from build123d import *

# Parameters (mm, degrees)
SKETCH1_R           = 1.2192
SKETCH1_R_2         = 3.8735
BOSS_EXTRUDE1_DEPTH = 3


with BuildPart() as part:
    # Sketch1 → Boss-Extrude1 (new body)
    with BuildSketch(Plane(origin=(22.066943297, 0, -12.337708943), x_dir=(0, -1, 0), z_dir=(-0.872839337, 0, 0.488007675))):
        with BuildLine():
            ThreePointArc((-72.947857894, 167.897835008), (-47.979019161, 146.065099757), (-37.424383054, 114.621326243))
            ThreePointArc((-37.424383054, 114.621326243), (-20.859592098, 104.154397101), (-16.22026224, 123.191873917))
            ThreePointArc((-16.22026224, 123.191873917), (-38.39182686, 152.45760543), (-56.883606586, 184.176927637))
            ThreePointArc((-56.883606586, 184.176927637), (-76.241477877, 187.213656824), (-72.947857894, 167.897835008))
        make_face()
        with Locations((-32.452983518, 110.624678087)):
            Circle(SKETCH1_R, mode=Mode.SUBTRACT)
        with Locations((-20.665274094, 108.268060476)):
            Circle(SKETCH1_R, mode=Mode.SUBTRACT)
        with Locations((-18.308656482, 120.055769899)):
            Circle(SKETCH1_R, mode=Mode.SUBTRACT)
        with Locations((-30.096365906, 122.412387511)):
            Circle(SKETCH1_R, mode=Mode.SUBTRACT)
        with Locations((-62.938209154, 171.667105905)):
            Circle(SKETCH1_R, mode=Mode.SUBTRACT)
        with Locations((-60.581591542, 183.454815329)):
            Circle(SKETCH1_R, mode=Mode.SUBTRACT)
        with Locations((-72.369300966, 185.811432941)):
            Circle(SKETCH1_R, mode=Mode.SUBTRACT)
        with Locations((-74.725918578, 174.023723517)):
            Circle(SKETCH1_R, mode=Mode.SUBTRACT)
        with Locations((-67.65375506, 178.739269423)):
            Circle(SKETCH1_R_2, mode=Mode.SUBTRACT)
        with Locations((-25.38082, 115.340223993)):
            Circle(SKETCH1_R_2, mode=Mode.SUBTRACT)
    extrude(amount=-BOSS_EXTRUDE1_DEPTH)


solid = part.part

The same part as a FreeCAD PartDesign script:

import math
import FreeCAD as App
import Part
import Sketcher

V = App.Vector
Q = App.Units.Quantity

doc = App.newDocument("Part")
body = doc.addObject("PartDesign::Body", "Body")

# Sketch on an angled plane
sketch1 = body.newObject("Sketcher::SketchObject", "Sketch")
sketch1.Placement = App.Placement(V(22.066943, 0, -12.337709), App.Rotation(V(0, -1, 0), V(0.488007675, 0, 0.872839337), V(-0.872839337, 0, 0.488007675), "ZXY"))
sketch1.addGeometry([
    Part.ArcOfCircle(Part.Circle(V(-100.811557, 110.837654, 0), V(0, 0, 1), 63.5), math.radians(3.416015), math.radians(63.97276)),  # 0
    Part.ArcOfCircle(Part.Circle(V(-25.38082, 115.340224, 0), V(0, 0, 1), 12.065), math.radians(-176.583985), math.radians(40.600369)),  # 1
    Part.ArcOfCircle(Part.Circle(V(215.204355, 321.549345, 0), V(0, 0, 1), 304.8), math.radians(-153.211594), math.radians(-139.399631)),  # 2
    Part.ArcOfCircle(Part.Circle(V(-67.653755, 178.739269, 0), V(0, 0, 1), 12.065), math.radians(26.788406), math.radians(243.97276)),  # 3
    Part.Circle(V(-32.452984, 110.624678, 0), V(0, 0, 1), 1.2192),  # 4
    Part.Circle(V(-25.38082, 115.340224, 0), V(0, 0, 1), 3.8735),  # 5
    Part.Circle(V(-20.665274, 108.26806, 0), V(0, 0, 1), 1.2192),  # 6
    Part.Circle(V(-30.096366, 122.412387, 0), V(0, 0, 1), 1.2192),  # 7
    Part.Circle(V(-18.308656, 120.05577, 0), V(0, 0, 1), 1.2192),  # 8
    Part.Circle(V(-74.725919, 174.023723, 0), V(0, 0, 1), 1.2192),  # 9
    Part.Circle(V(-62.938209, 171.667106, 0), V(0, 0, 1), 1.2192),  # 10
    Part.Circle(V(-72.369301, 185.811433, 0), V(0, 0, 1), 1.2192),  # 11
    Part.Circle(V(-67.653755, 178.739269, 0), V(0, 0, 1), 3.8735),  # 12
    Part.Circle(V(-60.581592, 183.454815, 0), V(0, 0, 1), 1.2192),  # 13
], False)
sketch1.addConstraint([
    Sketcher.Constraint("Tangent", 0, 1, 1, 1),
    Sketcher.Constraint("Tangent", 1, 2, 2, 2),
    Sketcher.Constraint("Tangent", 2, 1, 3, 1),
    Sketcher.Constraint("Tangent", 3, 2, 0, 2),
    Sketcher.Constraint("Coincident", 5, 3, 1, 3),
    Sketcher.Constraint("Coincident", 12, 3, 3, 3),
    Sketcher.Constraint("Equal", 1, 3),
    Sketcher.Constraint("Equal", 4, 6),
    Sketcher.Constraint("Equal", 6, 7),
    Sketcher.Constraint("Equal", 7, 8),
    Sketcher.Constraint("Equal", 8, 9),
    Sketcher.Constraint("Equal", 9, 10),
    Sketcher.Constraint("Equal", 10, 11),
    Sketcher.Constraint("Equal", 5, 12),
    Sketcher.Constraint("Equal", 11, 13),
    Sketcher.Constraint("Radius", 2, Q("12 in")),
    Sketcher.Constraint("Radius", 0, Q("2.5 in")),
    Sketcher.Constraint("Diameter", 4, Q("0.096 in")),
    Sketcher.Constraint("Diameter", 5, Q("0.305 in")),
    Sketcher.Constraint("Radius", 1, Q("0.475 in")),
    Sketcher.Constraint("DistanceX", 11, 3, -1, 1, Q("72.369301 mm")),
    Sketcher.Constraint("DistanceX", 0, 3, 3, 3, Q("33.157802 mm")),
    Sketcher.Constraint("DistanceX", 9, 3, 1, 3, Q("49.345099 mm")),
    Sketcher.Constraint("DistanceY", 1, 3, 9, 3, Q("58.683499 mm")),
    Sketcher.Constraint("DistanceX", 0, 1, 4, 3, Q("4.9714 mm")),
    Sketcher.Constraint("DistanceX", 1, 3, -1, 1, Q("25.38082 mm")),
    Sketcher.Constraint("DistanceY", -1, 1, 3, 3, Q("178.739269 mm")),
    Sketcher.Constraint("DistanceY", -1, 1, 6, 3, Q("108.26806 mm")),
    Sketcher.Constraint("DistanceY", -1, 1, 8, 3, Q("120.05577 mm")),
    Sketcher.Constraint("DistanceX", 10, 3, -1, 1, Q("62.938209 mm")),
    Sketcher.Constraint("DistanceX", 13, 3, -1, 1, Q("60.581592 mm")),
    Sketcher.Constraint("DistanceY", 0, 3, 1, 3, Q("4.50257 mm")),
    Sketcher.Constraint("DistanceY", 4, 3, 3, 3, Q("68.114591 mm")),
    Sketcher.Constraint("DistanceX", 4, 3, 6, 3, Q("11.787709 mm")),
    Sketcher.Constraint("DistanceY", 4, 3, 7, 3, Q("11.787709 mm")),
    Sketcher.Constraint("DistanceX", 7, 3, 6, 3, Q("9.431092 mm")),
    Sketcher.Constraint("DistanceX", 7, 3, 8, 3, Q("11.787709 mm")),
    Sketcher.Constraint("DistanceY", 7, 3, 10, 3, Q("49.254718 mm")),
    Sketcher.Constraint("DistanceY", 9, 3, 11, 3, Q("11.787709 mm")),
    Sketcher.Constraint("DistanceY", 10, 3, 13, 3, Q("11.787709 mm")),
])
pad1 = body.newObject("PartDesign::Pad", "Pad")
pad1.Profile = sketch1
pad1.Length = 3
pad1.Reversed = True

doc.recompute()
